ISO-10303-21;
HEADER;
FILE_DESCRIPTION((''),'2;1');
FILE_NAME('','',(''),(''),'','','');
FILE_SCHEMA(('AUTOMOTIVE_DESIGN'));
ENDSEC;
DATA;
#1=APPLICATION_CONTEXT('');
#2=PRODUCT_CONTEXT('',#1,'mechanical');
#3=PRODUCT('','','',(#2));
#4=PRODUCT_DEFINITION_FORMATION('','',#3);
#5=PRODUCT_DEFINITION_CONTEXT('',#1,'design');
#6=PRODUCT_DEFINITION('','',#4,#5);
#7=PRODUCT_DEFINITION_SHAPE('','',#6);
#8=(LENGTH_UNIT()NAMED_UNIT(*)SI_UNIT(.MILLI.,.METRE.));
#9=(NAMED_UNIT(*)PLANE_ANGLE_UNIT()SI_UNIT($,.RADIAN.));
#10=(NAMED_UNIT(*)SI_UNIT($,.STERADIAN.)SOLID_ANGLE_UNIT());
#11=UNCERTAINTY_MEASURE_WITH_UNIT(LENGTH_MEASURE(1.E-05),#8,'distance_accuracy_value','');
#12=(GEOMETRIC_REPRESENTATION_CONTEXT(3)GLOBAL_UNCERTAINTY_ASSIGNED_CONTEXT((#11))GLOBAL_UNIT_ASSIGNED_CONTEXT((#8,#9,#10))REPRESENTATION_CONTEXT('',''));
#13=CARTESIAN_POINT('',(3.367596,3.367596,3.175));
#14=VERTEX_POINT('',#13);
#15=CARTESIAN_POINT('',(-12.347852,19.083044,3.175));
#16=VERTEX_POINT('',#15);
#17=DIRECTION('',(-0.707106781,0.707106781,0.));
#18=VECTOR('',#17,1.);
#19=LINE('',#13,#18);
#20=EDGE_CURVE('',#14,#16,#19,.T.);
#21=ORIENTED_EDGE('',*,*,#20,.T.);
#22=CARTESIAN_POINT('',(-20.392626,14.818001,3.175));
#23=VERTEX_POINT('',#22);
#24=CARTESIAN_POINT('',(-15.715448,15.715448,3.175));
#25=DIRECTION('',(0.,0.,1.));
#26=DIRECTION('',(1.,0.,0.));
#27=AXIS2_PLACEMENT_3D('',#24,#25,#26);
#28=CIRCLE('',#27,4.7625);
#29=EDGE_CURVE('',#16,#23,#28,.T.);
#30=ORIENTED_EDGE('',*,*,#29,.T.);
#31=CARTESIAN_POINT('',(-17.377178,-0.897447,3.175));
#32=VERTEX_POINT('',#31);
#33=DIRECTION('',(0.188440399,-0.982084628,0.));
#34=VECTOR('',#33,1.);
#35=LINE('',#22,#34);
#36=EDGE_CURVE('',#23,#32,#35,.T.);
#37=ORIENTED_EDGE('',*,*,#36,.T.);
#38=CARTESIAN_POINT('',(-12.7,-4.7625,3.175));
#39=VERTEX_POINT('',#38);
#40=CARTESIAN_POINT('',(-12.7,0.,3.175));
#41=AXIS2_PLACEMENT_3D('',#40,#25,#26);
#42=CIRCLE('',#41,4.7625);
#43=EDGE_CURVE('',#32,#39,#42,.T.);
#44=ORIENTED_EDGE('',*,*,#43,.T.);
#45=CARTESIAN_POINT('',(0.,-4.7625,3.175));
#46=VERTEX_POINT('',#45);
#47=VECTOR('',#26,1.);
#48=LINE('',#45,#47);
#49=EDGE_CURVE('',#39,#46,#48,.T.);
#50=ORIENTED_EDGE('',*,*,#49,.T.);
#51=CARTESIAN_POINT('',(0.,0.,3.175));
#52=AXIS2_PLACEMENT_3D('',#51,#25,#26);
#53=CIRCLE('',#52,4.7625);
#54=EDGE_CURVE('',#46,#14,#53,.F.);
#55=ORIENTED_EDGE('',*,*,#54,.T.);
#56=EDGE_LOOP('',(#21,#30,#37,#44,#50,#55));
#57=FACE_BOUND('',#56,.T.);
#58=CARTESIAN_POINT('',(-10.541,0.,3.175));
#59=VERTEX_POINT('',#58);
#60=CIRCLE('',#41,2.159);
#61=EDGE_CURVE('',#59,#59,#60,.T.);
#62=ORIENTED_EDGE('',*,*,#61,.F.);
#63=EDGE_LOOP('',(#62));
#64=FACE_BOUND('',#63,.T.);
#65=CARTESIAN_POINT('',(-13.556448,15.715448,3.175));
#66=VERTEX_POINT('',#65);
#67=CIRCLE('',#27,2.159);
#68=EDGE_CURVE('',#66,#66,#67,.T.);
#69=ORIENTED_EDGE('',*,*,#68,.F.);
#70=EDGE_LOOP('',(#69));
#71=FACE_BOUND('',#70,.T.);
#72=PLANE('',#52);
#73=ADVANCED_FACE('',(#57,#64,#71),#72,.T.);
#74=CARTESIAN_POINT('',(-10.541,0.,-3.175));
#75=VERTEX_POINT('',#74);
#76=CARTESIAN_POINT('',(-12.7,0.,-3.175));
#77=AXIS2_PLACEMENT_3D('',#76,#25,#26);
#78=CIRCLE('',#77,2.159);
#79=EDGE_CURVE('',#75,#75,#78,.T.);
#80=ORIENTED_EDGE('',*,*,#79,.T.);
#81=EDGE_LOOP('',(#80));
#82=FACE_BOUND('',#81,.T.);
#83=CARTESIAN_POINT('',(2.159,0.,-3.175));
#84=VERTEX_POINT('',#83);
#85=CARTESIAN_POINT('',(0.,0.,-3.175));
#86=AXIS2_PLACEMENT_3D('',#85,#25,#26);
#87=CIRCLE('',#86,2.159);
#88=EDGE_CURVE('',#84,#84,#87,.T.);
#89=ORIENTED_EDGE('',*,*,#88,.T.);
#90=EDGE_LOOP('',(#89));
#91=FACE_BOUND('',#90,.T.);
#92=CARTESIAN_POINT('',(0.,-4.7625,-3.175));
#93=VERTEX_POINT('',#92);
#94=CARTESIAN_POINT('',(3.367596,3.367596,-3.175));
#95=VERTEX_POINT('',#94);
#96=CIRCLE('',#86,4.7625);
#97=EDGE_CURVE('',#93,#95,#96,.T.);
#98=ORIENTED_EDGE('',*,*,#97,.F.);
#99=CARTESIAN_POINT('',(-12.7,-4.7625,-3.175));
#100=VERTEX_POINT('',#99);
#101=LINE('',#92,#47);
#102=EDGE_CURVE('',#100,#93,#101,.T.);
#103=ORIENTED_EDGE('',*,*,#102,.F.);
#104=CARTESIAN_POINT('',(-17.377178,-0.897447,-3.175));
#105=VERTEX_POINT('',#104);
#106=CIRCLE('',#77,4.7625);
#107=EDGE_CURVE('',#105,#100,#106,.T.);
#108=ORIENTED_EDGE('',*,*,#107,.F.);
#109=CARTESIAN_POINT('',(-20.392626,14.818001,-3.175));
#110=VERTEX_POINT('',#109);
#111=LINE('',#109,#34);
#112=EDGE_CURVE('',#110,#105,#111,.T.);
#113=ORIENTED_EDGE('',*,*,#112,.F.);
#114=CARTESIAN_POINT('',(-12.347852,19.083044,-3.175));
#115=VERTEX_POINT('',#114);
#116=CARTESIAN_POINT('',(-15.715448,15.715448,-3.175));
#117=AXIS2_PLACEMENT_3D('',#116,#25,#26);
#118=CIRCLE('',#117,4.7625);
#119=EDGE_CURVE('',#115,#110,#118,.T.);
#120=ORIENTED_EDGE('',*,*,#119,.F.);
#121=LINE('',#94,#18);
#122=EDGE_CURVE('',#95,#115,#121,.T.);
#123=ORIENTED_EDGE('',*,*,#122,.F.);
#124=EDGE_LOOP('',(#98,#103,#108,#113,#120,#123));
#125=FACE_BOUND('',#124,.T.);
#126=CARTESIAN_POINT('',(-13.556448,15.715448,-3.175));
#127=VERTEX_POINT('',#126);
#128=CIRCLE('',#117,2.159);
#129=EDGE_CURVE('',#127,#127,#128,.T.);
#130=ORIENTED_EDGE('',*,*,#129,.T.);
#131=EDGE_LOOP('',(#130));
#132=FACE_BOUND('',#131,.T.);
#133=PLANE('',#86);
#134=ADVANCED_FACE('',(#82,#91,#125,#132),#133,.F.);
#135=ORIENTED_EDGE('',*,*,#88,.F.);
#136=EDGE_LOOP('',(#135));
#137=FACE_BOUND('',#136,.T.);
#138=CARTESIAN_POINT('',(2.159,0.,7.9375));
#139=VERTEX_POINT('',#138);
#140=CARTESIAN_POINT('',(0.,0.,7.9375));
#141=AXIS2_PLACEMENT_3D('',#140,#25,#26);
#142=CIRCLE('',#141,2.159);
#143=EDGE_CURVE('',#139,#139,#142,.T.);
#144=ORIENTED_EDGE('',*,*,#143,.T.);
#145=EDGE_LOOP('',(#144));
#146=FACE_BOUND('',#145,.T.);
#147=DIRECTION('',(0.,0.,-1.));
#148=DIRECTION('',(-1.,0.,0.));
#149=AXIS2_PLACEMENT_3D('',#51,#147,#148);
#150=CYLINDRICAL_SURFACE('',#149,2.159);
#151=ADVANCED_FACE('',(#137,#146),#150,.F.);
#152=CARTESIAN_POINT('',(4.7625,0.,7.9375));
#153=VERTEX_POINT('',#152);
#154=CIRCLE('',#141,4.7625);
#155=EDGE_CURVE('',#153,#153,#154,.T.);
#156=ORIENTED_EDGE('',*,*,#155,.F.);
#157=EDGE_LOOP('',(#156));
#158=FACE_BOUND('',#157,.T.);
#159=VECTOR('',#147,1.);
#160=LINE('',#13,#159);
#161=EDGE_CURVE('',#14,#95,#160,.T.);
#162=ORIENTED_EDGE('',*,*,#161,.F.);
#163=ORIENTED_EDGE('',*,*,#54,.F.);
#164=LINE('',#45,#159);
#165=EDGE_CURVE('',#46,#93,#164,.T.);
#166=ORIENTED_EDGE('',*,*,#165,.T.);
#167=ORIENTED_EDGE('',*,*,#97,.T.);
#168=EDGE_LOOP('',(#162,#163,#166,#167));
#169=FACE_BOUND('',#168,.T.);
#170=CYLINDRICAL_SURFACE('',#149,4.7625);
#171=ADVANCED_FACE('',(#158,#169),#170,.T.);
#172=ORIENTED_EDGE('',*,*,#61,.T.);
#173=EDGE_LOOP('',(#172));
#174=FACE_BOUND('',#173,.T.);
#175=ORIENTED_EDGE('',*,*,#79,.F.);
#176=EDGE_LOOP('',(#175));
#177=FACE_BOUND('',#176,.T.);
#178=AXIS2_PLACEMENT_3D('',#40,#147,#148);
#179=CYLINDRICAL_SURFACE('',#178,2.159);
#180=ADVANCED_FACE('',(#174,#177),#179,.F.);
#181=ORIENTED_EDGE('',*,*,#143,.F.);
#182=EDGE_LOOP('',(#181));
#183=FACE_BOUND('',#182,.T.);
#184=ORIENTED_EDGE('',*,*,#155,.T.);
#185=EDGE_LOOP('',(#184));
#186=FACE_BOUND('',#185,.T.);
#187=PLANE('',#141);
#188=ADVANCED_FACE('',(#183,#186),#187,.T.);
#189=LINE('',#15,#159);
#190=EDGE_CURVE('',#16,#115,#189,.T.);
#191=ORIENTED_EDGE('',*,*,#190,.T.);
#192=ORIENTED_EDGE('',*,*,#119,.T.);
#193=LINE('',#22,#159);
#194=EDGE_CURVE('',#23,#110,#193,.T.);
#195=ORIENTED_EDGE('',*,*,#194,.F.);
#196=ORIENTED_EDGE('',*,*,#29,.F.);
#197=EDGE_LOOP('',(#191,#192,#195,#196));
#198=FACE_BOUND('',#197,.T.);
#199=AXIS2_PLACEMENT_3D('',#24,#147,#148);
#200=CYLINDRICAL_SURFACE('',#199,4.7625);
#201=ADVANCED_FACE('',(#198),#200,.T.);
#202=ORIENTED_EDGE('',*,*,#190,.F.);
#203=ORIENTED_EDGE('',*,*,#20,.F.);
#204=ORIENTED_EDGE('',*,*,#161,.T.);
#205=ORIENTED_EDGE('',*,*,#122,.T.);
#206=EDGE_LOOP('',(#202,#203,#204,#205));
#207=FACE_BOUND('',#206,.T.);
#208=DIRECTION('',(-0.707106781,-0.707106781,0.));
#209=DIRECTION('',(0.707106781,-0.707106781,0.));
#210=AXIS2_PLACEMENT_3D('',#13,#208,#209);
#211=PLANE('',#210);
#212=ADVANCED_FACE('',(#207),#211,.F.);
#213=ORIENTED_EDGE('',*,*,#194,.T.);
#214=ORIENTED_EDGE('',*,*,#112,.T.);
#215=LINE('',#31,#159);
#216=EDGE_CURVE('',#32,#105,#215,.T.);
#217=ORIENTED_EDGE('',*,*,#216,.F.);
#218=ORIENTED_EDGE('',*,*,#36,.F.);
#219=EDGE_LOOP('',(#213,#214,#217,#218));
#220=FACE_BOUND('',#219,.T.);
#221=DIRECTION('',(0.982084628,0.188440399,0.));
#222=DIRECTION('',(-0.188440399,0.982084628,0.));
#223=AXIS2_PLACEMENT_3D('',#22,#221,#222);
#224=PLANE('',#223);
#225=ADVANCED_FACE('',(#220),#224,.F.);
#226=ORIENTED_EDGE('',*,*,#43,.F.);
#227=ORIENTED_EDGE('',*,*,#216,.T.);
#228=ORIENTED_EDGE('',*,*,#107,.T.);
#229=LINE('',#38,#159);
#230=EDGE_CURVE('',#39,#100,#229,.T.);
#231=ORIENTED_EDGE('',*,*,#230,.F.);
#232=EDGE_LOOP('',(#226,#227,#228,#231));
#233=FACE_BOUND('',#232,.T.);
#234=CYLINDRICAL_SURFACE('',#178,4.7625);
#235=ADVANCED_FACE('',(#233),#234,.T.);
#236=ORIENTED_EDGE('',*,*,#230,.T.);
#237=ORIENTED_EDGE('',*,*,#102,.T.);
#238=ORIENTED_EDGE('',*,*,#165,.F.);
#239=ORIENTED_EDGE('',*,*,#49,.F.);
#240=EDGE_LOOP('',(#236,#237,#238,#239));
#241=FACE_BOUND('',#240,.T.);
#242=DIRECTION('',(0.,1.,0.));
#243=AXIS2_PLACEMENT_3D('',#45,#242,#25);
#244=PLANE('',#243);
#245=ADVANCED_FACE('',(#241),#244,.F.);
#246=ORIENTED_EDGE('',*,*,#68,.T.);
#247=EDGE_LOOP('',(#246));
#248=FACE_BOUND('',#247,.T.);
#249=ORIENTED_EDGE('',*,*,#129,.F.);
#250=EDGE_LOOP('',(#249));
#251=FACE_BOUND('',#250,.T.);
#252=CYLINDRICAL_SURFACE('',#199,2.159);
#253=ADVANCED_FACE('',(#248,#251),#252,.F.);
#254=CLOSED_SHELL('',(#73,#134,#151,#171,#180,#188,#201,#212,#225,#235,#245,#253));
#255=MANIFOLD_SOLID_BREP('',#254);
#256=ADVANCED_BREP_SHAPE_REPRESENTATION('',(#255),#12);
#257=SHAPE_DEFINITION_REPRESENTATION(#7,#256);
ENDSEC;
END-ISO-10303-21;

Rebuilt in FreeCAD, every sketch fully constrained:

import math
import FreeCAD as App
import Part
import Sketcher
Q = App.Units.Quantity

doc = App.newDocument("Part")
body = doc.addObject("PartDesign::Body", "Body")

sketch1 = doc.addObject("Sketcher::SketchObject", "Sketch")
body.addObject(sketch1)
sketch1.AttachmentSupport = (doc.XY_Plane, [""])
sketch1.MapMode = "FlatFace"
sketch1.addGeometry(Part.LineSegment(App.Vector(-12.7, -4.8, 0), App.Vector(0, -4.8, 0)), False)
sketch1.addGeometry(Part.ArcOfCircle(Part.Circle(App.Vector(0, 0, 0), App.Vector(0, 0, 1), 4.8), math.radians(-90), math.radians(45)), False)
sketch1.addGeometry(Part.LineSegment(App.Vector(3.4, 3.4, 0), App.Vector(-12.3, 19.1, 0)), False)
sketch1.addGeometry(Part.ArcOfCircle(Part.Circle(App.Vector(-15.7, 15.7, 0), App.Vector(0, 0, 1), 4.8), math.radians(45), math.radians(191)), False)
sketch1.addGeometry(Part.LineSegment(App.Vector(-20.4, 14.8, 0), App.Vector(-17.4, -0.9, 0)), False)
sketch1.addGeometry(Part.ArcOfCircle(Part.Circle(App.Vector(-12.7, 0, 0), App.Vector(0, 0, 1), 4.8), math.radians(-169), math.radians(-90)), False)
sketch1.addGeometry(Part.Circle(App.Vector(0, 0, 0), App.Vector(0, 0, 1), 2.2), False)
sketch1.addGeometry(Part.Circle(App.Vector(-12.7, 0, 0), App.Vector(0, 0, 1), 2.2), False)
sketch1.addGeometry(Part.Circle(App.Vector(-15.7, 15.7, 0), App.Vector(0, 0, 1), 2.2), False)
sketch1.addConstraint(Sketcher.Constraint("Tangent", 0, 2, 1, 1))
sketch1.addConstraint(Sketcher.Constraint("Tangent", 1, 2, 2, 1))
sketch1.addConstraint(Sketcher.Constraint("Tangent", 2, 2, 3, 1))
sketch1.addConstraint(Sketcher.Constraint("Tangent", 3, 2, 4, 1))
sketch1.addConstraint(Sketcher.Constraint("Tangent", 4, 2, 5, 1))
sketch1.addConstraint(Sketcher.Constraint("Tangent", 5, 2, 0, 1))
sketch1.addConstraint(Sketcher.Constraint("Horizontal", 0))
sketch1.addConstraint(Sketcher.Constraint("Coincident", 1, 3, -1, 1))
sketch1.addConstraint(Sketcher.Constraint("Coincident", 6, 3, -1, 1))
sketch1.addConstraint(Sketcher.Constraint("Coincident", 7, 3, 5, 3))
sketch1.addConstraint(Sketcher.Constraint("Coincident", 8, 3, 3, 3))
sketch1.addConstraint(Sketcher.Constraint("Equal", 1, 3))
sketch1.addConstraint(Sketcher.Constraint("Equal", 3, 5))
sketch1.addConstraint(Sketcher.Constraint("Equal", 6, 7))
sketch1.addConstraint(Sketcher.Constraint("Equal", 7, 8))
sketch1.addConstraint(Sketcher.Constraint("Diameter", 6, Q("0.17 in")))
sketch1.addConstraint(Sketcher.Constraint("DistanceX", 0, 1, 0, 2, Q("0.5 in")))
sketch1.addConstraint(Sketcher.Constraint("Angle", 2, Q("135 deg")))
sketch1.addConstraint(Sketcher.Constraint("Radius", 1, Q("0.1875 in")))
sketch1.addConstraint(Sketcher.Constraint("Distance", 2, Q("0.875 in")))
pad1 = doc.addObject("PartDesign::Pad", "Pad")
body.addObject(pad1)
pad1.Profile = sketch1
pad1.Length = Q("0.25 in")
pad1.Midplane = True

sketch2 = doc.addObject("Sketcher::SketchObject", "Sketch001")
body.addObject(sketch2)
sketch2.AttachmentSupport = (doc.XY_Plane, [""])
sketch2.MapMode = "FlatFace"
sketch2.AttachmentOffset = App.Placement(App.Vector(0, 0, 0.125 * 25.4), App.Rotation())
sketch2.addGeometry(Part.Circle(App.Vector(0, 0, 0), App.Vector(0, 0, 1), 4.8), False)
sketch2.addGeometry(Part.Circle(App.Vector(0, 0, 0), App.Vector(0, 0, 1), 2.2), False)
sketch2.addConstraint(Sketcher.Constraint("Coincident", 0, 3, -1, 1))
sketch2.addConstraint(Sketcher.Constraint("Coincident", 1, 3, -1, 1))
sketch2.addConstraint(Sketcher.Constraint("Diameter", 1, Q("0.17 in")))
sketch2.addConstraint(Sketcher.Constraint("Diameter", 0, Q("0.375 in")))
pad2 = doc.addObject("PartDesign::Pad", "Pad001")
body.addObject(pad2)
pad2.Profile = sketch2
pad2.Length = Q("0.375 in")
pad2.Midplane = True

doc.recompute()
